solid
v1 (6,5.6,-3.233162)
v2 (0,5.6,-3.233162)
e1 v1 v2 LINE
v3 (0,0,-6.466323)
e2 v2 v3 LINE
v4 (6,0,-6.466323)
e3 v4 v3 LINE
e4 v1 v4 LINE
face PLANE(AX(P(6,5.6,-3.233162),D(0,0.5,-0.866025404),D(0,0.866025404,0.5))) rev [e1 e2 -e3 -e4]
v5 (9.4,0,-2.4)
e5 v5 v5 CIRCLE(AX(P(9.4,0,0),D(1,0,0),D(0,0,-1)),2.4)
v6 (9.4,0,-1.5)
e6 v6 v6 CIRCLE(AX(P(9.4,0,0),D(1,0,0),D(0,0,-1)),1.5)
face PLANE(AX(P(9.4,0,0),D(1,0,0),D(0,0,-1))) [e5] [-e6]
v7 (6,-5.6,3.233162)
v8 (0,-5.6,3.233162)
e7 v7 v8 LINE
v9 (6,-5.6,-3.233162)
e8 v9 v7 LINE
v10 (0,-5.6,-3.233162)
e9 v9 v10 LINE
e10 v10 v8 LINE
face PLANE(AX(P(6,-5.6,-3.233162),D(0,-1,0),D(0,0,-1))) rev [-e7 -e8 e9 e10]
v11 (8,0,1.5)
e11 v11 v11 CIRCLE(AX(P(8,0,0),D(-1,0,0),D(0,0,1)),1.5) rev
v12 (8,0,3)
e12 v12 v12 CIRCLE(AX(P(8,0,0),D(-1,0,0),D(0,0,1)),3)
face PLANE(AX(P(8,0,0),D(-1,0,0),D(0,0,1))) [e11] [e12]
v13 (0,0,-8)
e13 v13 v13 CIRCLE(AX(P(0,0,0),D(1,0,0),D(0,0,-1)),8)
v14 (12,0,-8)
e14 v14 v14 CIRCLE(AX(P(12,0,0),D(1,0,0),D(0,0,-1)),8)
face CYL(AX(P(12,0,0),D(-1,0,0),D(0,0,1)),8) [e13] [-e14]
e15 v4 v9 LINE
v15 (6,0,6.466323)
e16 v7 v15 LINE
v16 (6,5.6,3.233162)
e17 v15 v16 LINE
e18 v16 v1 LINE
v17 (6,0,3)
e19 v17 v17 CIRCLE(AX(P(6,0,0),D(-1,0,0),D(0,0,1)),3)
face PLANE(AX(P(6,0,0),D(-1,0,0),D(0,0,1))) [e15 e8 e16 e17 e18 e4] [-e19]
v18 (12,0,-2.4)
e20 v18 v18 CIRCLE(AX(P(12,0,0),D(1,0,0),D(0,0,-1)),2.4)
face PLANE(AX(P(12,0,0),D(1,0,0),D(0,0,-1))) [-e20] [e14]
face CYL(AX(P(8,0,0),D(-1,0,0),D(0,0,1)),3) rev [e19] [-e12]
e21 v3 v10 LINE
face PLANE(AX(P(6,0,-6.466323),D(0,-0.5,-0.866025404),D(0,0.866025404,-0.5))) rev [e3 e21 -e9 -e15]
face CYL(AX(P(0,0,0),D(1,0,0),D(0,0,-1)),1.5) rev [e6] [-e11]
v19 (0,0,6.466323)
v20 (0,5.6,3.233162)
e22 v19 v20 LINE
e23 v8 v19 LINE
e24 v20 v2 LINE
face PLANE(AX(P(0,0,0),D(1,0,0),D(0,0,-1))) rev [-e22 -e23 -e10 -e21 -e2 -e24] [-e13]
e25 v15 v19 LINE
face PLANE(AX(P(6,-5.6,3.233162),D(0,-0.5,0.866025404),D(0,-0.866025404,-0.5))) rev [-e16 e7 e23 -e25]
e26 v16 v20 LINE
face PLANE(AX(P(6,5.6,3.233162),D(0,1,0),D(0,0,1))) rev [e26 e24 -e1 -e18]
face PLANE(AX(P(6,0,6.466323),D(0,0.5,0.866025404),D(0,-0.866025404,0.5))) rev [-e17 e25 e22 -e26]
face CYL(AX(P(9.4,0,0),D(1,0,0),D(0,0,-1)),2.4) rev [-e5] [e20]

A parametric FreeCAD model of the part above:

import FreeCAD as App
import Part
import Sketcher
Q = App.Units.Quantity


def add_polygon(sketch, points):
    """Adds a closed chain of lines whose ends are joined by coincident constraints."""
    first, n = sketch.GeometryCount, len(points)
    for a, b in zip(points, points[1:] + points[:1]):
        sketch.addGeometry(Part.LineSegment(App.Vector(*a, 0), App.Vector(*b, 0)), False)
    for i in range(n):
        sketch.addConstraint(Sketcher.Constraint("Coincident", first + i, 2, first + (i + 1) % n, 1))

doc = App.newDocument("Part")
body = doc.addObject("PartDesign::Body", "Body")

# Sketch on YZ plane
sketch1 = doc.addObject("Sketcher::SketchObject", "Sketch")
body.addObject(sketch1)
sketch1.AttachmentSupport = (doc.YZ_Plane, [""])
sketch1.MapMode = "FlatFace"
sketch1.addGeometry(Part.Circle(App.Vector(0, 0, 0), App.Vector(0, 0, 1), 8), False)
sketch1.addConstraint([
    Sketcher.Constraint("Coincident", 0, 3, -1, 1),
    Sketcher.Constraint("Diameter", 0, Q("16 mm")),
])
pad1 = doc.addObject("PartDesign::Pad", "Pad")
body.addObject(pad1)
pad1.Profile = sketch1
pad1.Length = 12

# Sketch on YZ plane
sketch2 = doc.addObject("Sketcher::SketchObject", "Sketch001")
body.addObject(sketch2)
sketch2.AttachmentSupport = (doc.YZ_Plane, [""])
sketch2.MapMode = "FlatFace"
add_polygon(sketch2, [(0, 6), (6, 3), (6, -3), (0, -6), (-6, -3), (-6, 3)])  # lines 0-5
sketch2.addConstraint([
    Sketcher.Constraint("Vertical", 1),
    Sketcher.Constraint("Vertical", 4),
    Sketcher.Constraint("Symmetric", 0, 2, 3, 2, -1, 1),
    Sketcher.Constraint("Symmetric", 2, 2, 5, 2, -1, 1),
    Sketcher.Constraint("PointOnObject", 2, 2, -2),
    Sketcher.Constraint("Parallel", 2, 5),
    Sketcher.Constraint("Horizontal", 1, 2, 3, 2),
    Sketcher.Constraint("Angle", 0, Q("-30 deg")),
    Sketcher.Constraint("DistanceX", -1, 1, 0, 2, Q("5.6 mm")),
    Sketcher.Constraint("DistanceY", 1, 2, 1, 1, Q("6.466323 mm")),
])
pocket1 = doc.addObject("PartDesign::Pocket", "Pocket")
body.addObject(pocket1)
pocket1.Profile = sketch2
pocket1.Length = 6
pocket1.Reversed = True

# Sketch on YZ plane
sketch3 = doc.addObject("Sketcher::SketchObject", "Sketch002")
body.addObject(sketch3)
sketch3.AttachmentSupport = (doc.YZ_Plane, [""])
sketch3.MapMode = "FlatFace"
sketch3.AttachmentOffset = App.Placement(App.Vector(0, 0, 12), App.Rotation())
sketch3.addGeometry(Part.Circle(App.Vector(0, 0, 0), App.Vector(0, 0, 1), 2.4), False)
sketch3.addConstraint([
    Sketcher.Constraint("Coincident", 0, 3, -1, 1),
    Sketcher.Constraint("Diameter", 0, Q("4.8 mm")),
])
pocket2 = doc.addObject("PartDesign::Pocket", "Pocket001")
body.addObject(pocket2)
pocket2.Profile = sketch3
pocket2.Length = 2.6

# Sketch on YZ plane
sketch4 = doc.addObject("Sketcher::SketchObject", "Sketch003")
body.addObject(sketch4)
sketch4.AttachmentSupport = (doc.YZ_Plane, [""])
sketch4.MapMode = "FlatFace"
sketch4.AttachmentOffset = App.Placement(App.Vector(0, 0, 9.4), App.Rotation())
sketch4.addGeometry(Part.Circle(App.Vector(0, 0, 0), App.Vector(0, 0, 1), 1.5), False)
sketch4.addConstraint([
    Sketcher.Constraint("Coincident", 0, 3, -1, 1),
    Sketcher.Constraint("Diameter", 0, Q("3 mm")),
])
pocket3 = doc.addObject("PartDesign::Pocket", "Pocket002")
body.addObject(pocket3)
pocket3.Profile = sketch4
pocket3.Type = "ThroughAll"

# Sketch on YZ plane
sketch5 = doc.addObject("Sketcher::SketchObject", "Sketch004")
body.addObject(sketch5)
sketch5.AttachmentSupport = (doc.YZ_Plane, [""])
sketch5.MapMode = "FlatFace"
sketch5.AttachmentOffset = App.Placement(App.Vector(0, 0, 6), App.Rotation())
sketch5.addGeometry(Part.Circle(App.Vector(0, 0, 0), App.Vector(0, 0, 1), 3), False)
sketch5.addConstraint([
    Sketcher.Constraint("Coincident", 0, 3, -1, 1),
    Sketcher.Constraint("Diameter", 0, Q("6 mm")),
])
pocket4 = doc.addObject("PartDesign::Pocket", "Pocket003")
body.addObject(pocket4)
pocket4.Profile = sketch5
pocket4.Length = 2
pocket4.Reversed = True

doc.recompute()
